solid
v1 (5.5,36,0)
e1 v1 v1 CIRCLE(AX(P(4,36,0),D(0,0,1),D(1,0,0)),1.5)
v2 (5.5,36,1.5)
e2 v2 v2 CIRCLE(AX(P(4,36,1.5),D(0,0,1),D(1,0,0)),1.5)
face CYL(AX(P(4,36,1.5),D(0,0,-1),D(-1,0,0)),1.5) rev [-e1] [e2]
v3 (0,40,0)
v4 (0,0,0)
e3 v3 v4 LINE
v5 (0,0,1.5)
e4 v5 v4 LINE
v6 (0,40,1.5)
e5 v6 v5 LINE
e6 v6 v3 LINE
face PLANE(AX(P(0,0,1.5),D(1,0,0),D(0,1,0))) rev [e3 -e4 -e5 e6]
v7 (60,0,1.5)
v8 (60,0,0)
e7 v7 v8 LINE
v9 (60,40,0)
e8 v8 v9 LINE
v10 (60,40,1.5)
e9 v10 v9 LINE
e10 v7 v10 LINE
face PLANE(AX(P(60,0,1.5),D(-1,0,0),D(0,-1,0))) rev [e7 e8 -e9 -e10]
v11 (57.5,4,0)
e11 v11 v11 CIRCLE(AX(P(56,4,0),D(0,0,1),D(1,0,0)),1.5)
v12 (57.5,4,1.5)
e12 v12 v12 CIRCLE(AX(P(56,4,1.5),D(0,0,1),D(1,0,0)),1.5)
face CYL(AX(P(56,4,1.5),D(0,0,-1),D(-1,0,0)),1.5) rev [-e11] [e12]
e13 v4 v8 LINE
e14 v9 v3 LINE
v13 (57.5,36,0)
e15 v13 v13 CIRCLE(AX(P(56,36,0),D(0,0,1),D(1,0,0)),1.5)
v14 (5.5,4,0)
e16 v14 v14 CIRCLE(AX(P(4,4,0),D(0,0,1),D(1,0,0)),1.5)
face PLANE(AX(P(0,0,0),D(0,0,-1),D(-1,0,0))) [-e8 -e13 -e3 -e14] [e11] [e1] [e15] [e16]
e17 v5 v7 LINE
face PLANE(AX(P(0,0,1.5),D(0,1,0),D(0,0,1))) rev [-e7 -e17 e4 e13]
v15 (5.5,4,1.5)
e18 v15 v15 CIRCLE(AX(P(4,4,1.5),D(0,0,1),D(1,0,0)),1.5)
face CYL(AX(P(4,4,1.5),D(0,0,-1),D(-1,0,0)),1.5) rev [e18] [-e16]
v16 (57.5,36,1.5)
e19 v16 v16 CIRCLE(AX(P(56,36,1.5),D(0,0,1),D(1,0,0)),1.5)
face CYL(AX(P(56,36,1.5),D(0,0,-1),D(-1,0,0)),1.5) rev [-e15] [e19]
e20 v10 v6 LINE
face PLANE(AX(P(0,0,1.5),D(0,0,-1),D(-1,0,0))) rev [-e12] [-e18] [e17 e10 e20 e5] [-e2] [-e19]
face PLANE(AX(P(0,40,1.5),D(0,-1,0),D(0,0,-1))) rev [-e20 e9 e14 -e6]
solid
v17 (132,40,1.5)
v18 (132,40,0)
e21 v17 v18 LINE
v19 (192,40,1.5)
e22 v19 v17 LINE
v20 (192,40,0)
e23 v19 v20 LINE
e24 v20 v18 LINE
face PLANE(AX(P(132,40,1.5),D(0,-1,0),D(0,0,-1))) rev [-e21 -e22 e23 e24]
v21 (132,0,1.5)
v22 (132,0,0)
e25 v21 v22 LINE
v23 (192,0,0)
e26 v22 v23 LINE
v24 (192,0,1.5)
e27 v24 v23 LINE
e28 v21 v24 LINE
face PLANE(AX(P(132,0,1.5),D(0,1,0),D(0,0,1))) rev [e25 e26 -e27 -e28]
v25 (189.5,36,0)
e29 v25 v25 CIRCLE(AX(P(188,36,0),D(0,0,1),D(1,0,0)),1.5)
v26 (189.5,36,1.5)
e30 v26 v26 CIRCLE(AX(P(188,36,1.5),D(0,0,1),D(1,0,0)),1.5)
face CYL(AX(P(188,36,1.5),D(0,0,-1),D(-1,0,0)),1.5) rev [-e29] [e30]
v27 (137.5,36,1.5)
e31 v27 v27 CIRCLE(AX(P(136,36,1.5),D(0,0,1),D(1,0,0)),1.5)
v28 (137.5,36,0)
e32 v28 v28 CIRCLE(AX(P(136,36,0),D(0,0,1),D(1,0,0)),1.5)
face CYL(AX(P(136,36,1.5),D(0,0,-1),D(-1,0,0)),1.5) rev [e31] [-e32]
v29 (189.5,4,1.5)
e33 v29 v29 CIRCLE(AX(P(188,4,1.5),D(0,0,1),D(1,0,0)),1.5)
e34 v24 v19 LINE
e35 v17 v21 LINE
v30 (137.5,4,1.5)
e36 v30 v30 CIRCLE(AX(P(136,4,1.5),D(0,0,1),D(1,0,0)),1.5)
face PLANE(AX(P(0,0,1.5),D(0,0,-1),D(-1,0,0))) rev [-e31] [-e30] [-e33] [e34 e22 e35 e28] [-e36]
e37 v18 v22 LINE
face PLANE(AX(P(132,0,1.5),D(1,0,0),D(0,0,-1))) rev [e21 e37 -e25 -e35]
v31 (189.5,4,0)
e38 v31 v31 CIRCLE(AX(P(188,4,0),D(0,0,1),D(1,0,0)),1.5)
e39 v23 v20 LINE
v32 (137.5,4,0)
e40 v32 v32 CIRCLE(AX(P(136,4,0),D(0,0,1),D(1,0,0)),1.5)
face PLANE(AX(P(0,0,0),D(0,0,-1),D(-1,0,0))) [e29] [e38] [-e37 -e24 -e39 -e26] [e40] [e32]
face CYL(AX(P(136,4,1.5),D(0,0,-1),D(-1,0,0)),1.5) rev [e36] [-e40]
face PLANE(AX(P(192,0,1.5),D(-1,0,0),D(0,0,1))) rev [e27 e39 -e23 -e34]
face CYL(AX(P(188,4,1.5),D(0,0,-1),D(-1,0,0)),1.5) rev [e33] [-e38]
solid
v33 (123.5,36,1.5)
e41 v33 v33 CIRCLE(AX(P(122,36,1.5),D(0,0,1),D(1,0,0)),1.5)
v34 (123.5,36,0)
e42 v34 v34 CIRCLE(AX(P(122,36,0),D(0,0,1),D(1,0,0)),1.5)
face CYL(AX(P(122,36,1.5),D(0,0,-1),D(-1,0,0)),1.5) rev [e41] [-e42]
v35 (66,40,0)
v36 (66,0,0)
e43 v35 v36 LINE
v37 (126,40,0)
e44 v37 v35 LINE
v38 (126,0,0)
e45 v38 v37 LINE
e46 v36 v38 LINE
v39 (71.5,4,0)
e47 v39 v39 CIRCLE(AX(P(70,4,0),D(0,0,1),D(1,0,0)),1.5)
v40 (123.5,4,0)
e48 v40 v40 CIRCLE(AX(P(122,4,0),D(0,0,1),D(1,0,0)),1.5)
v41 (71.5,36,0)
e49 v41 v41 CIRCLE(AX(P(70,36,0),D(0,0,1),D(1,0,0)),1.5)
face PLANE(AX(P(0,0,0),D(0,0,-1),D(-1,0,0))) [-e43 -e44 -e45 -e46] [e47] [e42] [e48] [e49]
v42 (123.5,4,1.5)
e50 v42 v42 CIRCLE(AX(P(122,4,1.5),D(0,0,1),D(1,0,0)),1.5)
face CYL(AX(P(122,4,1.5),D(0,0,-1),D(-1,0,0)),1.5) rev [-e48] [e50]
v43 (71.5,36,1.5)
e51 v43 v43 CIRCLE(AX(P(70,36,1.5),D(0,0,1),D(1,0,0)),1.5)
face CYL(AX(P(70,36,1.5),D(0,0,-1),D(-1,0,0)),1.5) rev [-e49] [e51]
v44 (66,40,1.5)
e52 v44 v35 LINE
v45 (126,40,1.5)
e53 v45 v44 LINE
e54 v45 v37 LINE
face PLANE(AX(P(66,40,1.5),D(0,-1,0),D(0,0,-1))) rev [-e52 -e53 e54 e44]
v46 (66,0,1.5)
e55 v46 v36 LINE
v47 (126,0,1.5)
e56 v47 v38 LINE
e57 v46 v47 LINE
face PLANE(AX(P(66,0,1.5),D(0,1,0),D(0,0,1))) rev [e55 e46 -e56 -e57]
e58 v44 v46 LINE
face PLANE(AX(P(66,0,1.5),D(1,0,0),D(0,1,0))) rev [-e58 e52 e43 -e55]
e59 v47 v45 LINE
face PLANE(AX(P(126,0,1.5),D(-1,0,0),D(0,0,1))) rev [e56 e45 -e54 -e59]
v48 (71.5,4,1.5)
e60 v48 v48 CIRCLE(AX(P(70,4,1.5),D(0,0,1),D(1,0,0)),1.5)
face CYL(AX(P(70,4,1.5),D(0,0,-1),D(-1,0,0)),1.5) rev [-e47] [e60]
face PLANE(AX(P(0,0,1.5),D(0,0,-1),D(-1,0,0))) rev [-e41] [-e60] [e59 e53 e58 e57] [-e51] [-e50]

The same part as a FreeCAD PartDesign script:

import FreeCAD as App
import Part
import Sketcher

V = App.Vector

doc = App.newDocument("Part")
params = doc.addObject("Spreadsheet::Sheet", "Params")
for row, (alias, value) in enumerate([
    ("sketch1_diameter", "3 mm"),
    ("sketch1_width", "60 mm"),
    ("sketch1_height", "40 mm"),
    ("pad1_length", "1.5 mm"),
    ("sketch2_diameter", "3 mm"),
    ("sketch2_width", "60 mm"),
    ("sketch2_height", "40 mm"),
    ("pad2_length", "1.5 mm"),
    ("sketch3_diameter", "3 mm"),
    ("sketch3_width", "60 mm"),
    ("sketch3_height", "40 mm"),
    ("pad3_length", "1.5 mm"),
], start=1):
    params.set(f"A{row}", alias)
    params.set(f"B{row}", "=" + value)
    params.setAlias(f"B{row}", alias)

body = doc.addObject("PartDesign::Body", "Body")

# Sketch on XY plane
sketch1 = body.newObject("Sketcher::SketchObject", "Sketch")
sketch1.AttachmentSupport = (doc.getObject("XY_Plane"), [""])
sketch1.MapMode = "FlatFace"
sketch1.addGeometry([
    Part.LineSegment(V(66, 40, 0), V(66, 0, 0)),  # 0
    Part.LineSegment(V(66, 0, 0), V(126, 0, 0)),  # 1
    Part.LineSegment(V(126, 0, 0), V(126, 40, 0)),  # 2
    Part.LineSegment(V(126, 40, 0), V(66, 40, 0)),  # 3
    Part.Circle(V(70, 4, 0), V(0, 0, 1), 1.5),  # 4
    Part.Circle(V(122, 4, 0), V(0, 0, 1), 1.5),  # 5
    Part.Circle(V(70, 36, 0), V(0, 0, 1), 1.5),  # 6
    Part.Circle(V(122, 36, 0), V(0, 0, 1), 1.5),  # 7
], False)
sketch1.addConstraint([
    Sketcher.Constraint("Coincident", 0, 2, 1, 1),
    Sketcher.Constraint("Coincident", 1, 2, 2, 1),
    Sketcher.Constraint("Coincident", 2, 2, 3, 1),
    Sketcher.Constraint("Coincident", 3, 2, 0, 1),
    Sketcher.Constraint("Vertical", 0),
    Sketcher.Constraint("Horizontal", 1),
    Sketcher.Constraint("Vertical", 2),
    Sketcher.Constraint("Horizontal", 3),
    Sketcher.Constraint("Equal", 4, 5),
    Sketcher.Constraint("Equal", 5, 6),
    Sketcher.Constraint("Equal", 6, 7),
    Sketcher.Constraint("PointOnObject", 0, 2, -1),
    Sketcher.Constraint("Horizontal", 4, 3, 5, 3),
    Sketcher.Constraint("Horizontal", 6, 3, 7, 3),
    Sketcher.Constraint("Vertical", 4, 3, 6, 3),
    Sketcher.Constraint("Vertical", 5, 3, 7, 3),
    Sketcher.Constraint("Diameter", 4, 3.0),
    Sketcher.Constraint("DistanceX", 1, 1, 1, 2, 60.0),
    Sketcher.Constraint("DistanceY", 0, 2, 0, 1, 40.0),
    Sketcher.Constraint("DistanceX", -1, 1, 4, 3, 70.0),
    Sketcher.Constraint("DistanceY", -1, 1, 4, 3, 4.0),
    Sketcher.Constraint("DistanceX", -1, 1, 5, 3, 122.0),
    Sketcher.Constraint("DistanceY", -1, 1, 6, 3, 36.0),
    Sketcher.Constraint("DistanceX", -1, 1, 0, 2, 66.0),
])
sketch1.setExpression("Constraints[16]", "Params.sketch1_diameter")
sketch1.setExpression("Constraints[17]", "Params.sketch1_width")
sketch1.setExpression("Constraints[18]", "Params.sketch1_height")
pad1 = body.newObject("PartDesign::Pad", "Pad")
pad1.Profile = sketch1
pad1.setExpression("Length", "Params.pad1_length")
body2 = doc.addObject("PartDesign::Body", "Body001")

# Sketch on XY plane
sketch2 = body2.newObject("Sketcher::SketchObject", "Sketch001")
sketch2.AttachmentSupport = (doc.getObject("XY_Plane001"), [""])
sketch2.MapMode = "FlatFace"
sketch2.addGeometry([
    Part.LineSegment(V(0, 40, 0), V(0, 0, 0)),  # 0
    Part.LineSegment(V(0, 0, 0), V(60, 0, 0)),  # 1
    Part.LineSegment(V(60, 0, 0), V(60, 40, 0)),  # 2
    Part.LineSegment(V(60, 40, 0), V(0, 40, 0)),  # 3
    Part.Circle(V(4, 4, 0), V(0, 0, 1), 1.5),  # 4
    Part.Circle(V(56, 4, 0), V(0, 0, 1), 1.5),  # 5
    Part.Circle(V(4, 36, 0), V(0, 0, 1), 1.5),  # 6
    Part.Circle(V(56, 36, 0), V(0, 0, 1), 1.5),  # 7
], False)
sketch2.addConstraint([
    Sketcher.Constraint("Coincident", 0, 2, 1, 1),
    Sketcher.Constraint("Coincident", 1, 2, 2, 1),
    Sketcher.Constraint("Coincident", 2, 2, 3, 1),
    Sketcher.Constraint("Coincident", 3, 2, 0, 1),
    Sketcher.Constraint("Vertical", 0),
    Sketcher.Constraint("Horizontal", 1),
    Sketcher.Constraint("Vertical", 2),
    Sketcher.Constraint("Horizontal", 3),
    Sketcher.Constraint("Coincident", 0, 2, -1, 1),
    Sketcher.Constraint("Equal", 4, 5),
    Sketcher.Constraint("Equal", 5, 6),
    Sketcher.Constraint("Equal", 6, 7),
    Sketcher.Constraint("Horizontal", 4, 3, 5, 3),
    Sketcher.Constraint("Horizontal", 6, 3, 7, 3),
    Sketcher.Constraint("Vertical", 4, 3, 6, 3),
    Sketcher.Constraint("Vertical", 5, 3, 7, 3),
    Sketcher.Constraint("Diameter", 4, 3.0),
    Sketcher.Constraint("DistanceX", 1, 1, 1, 2, 60.0),
    Sketcher.Constraint("DistanceY", 0, 2, 0, 1, 40.0),
    Sketcher.Constraint("DistanceX", -1, 1, 4, 3, 4.0),
    Sketcher.Constraint("DistanceY", -1, 1, 4, 3, 4.0),
    Sketcher.Constraint("DistanceX", -1, 1, 5, 3, 56.0),
    Sketcher.Constraint("DistanceY", -1, 1, 6, 3, 36.0),
])
sketch2.setExpression("Constraints[16]", "Params.sketch2_diameter")
sketch2.setExpression("Constraints[17]", "Params.sketch2_width")
sketch2.setExpression("Constraints[18]", "Params.sketch2_height")
pad2 = body2.newObject("PartDesign::Pad", "Pad001")
pad2.Profile = sketch2
pad2.setExpression("Length", "Params.pad2_length")
body3 = doc.addObject("PartDesign::Body", "Body002")

# Sketch on XY plane
sketch3 = body3.newObject("Sketcher::SketchObject", "Sketch002")
sketch3.AttachmentSupport = (doc.getObject("XY_Plane002"), [""])
sketch3.MapMode = "FlatFace"
sketch3.addGeometry([
    Part.LineSegment(V(132, 40, 0), V(132, 0, 0)),  # 0
    Part.LineSegment(V(132, 0, 0), V(192, 0, 0)),  # 1
    Part.LineSegment(V(192, 0, 0), V(192, 40, 0)),  # 2
    Part.LineSegment(V(192, 40, 0), V(132, 40, 0)),  # 3
    Part.Circle(V(136, 4, 0), V(0, 0, 1), 1.5),  # 4
    Part.Circle(V(188, 4, 0), V(0, 0, 1), 1.5),  # 5
    Part.Circle(V(136, 36, 0), V(0, 0, 1), 1.5),  # 6
    Part.Circle(V(188, 36, 0), V(0, 0, 1), 1.5),  # 7
], False)
sketch3.addConstraint([
    Sketcher.Constraint("Coincident", 0, 2, 1, 1),
    Sketcher.Constraint("Coincident", 1, 2, 2, 1),
    Sketcher.Constraint("Coincident", 2, 2, 3, 1),
    Sketcher.Constraint("Coincident", 3, 2, 0, 1),
    Sketcher.Constraint("Vertical", 0),
    Sketcher.Constraint("Horizontal", 1),
    Sketcher.Constraint("Vertical", 2),
    Sketcher.Constraint("Horizontal", 3),
    Sketcher.Constraint("Equal", 4, 5),
    Sketcher.Constraint("Equal", 5, 6),
    Sketcher.Constraint("Equal", 6, 7),
    Sketcher.Constraint("PointOnObject", 0, 2, -1),
    Sketcher.Constraint("Horizontal", 4, 3, 5, 3),
    Sketcher.Constraint("Horizontal", 6, 3, 7, 3),
    Sketcher.Constraint("Vertical", 4, 3, 6, 3),
    Sketcher.Constraint("Vertical", 5, 3, 7, 3),
    Sketcher.Constraint("Diameter", 4, 3.0),
    Sketcher.Constraint("DistanceX", 1, 1, 1, 2, 60.0),
    Sketcher.Constraint("DistanceY", 0, 2, 0, 1, 40.0),
    Sketcher.Constraint("DistanceX", -1, 1, 4, 3, 136.0),
    Sketcher.Constraint("DistanceY", -1, 1, 4, 3, 4.0),
    Sketcher.Constraint("DistanceX", -1, 1, 5, 3, 188.0),
    Sketcher.Constraint("DistanceY", -1, 1, 6, 3, 36.0),
    Sketcher.Constraint("DistanceX", -1, 1, 0, 2, 132.0),
])
sketch3.setExpression("Constraints[16]", "Params.sketch3_diameter")
sketch3.setExpression("Constraints[17]", "Params.sketch3_width")
sketch3.setExpression("Constraints[18]", "Params.sketch3_height")
pad3 = body3.newObject("PartDesign::Pad", "Pad002")
pad3.Profile = sketch3
pad3.setExpression("Length", "Params.pad3_length")

doc.recompute()
